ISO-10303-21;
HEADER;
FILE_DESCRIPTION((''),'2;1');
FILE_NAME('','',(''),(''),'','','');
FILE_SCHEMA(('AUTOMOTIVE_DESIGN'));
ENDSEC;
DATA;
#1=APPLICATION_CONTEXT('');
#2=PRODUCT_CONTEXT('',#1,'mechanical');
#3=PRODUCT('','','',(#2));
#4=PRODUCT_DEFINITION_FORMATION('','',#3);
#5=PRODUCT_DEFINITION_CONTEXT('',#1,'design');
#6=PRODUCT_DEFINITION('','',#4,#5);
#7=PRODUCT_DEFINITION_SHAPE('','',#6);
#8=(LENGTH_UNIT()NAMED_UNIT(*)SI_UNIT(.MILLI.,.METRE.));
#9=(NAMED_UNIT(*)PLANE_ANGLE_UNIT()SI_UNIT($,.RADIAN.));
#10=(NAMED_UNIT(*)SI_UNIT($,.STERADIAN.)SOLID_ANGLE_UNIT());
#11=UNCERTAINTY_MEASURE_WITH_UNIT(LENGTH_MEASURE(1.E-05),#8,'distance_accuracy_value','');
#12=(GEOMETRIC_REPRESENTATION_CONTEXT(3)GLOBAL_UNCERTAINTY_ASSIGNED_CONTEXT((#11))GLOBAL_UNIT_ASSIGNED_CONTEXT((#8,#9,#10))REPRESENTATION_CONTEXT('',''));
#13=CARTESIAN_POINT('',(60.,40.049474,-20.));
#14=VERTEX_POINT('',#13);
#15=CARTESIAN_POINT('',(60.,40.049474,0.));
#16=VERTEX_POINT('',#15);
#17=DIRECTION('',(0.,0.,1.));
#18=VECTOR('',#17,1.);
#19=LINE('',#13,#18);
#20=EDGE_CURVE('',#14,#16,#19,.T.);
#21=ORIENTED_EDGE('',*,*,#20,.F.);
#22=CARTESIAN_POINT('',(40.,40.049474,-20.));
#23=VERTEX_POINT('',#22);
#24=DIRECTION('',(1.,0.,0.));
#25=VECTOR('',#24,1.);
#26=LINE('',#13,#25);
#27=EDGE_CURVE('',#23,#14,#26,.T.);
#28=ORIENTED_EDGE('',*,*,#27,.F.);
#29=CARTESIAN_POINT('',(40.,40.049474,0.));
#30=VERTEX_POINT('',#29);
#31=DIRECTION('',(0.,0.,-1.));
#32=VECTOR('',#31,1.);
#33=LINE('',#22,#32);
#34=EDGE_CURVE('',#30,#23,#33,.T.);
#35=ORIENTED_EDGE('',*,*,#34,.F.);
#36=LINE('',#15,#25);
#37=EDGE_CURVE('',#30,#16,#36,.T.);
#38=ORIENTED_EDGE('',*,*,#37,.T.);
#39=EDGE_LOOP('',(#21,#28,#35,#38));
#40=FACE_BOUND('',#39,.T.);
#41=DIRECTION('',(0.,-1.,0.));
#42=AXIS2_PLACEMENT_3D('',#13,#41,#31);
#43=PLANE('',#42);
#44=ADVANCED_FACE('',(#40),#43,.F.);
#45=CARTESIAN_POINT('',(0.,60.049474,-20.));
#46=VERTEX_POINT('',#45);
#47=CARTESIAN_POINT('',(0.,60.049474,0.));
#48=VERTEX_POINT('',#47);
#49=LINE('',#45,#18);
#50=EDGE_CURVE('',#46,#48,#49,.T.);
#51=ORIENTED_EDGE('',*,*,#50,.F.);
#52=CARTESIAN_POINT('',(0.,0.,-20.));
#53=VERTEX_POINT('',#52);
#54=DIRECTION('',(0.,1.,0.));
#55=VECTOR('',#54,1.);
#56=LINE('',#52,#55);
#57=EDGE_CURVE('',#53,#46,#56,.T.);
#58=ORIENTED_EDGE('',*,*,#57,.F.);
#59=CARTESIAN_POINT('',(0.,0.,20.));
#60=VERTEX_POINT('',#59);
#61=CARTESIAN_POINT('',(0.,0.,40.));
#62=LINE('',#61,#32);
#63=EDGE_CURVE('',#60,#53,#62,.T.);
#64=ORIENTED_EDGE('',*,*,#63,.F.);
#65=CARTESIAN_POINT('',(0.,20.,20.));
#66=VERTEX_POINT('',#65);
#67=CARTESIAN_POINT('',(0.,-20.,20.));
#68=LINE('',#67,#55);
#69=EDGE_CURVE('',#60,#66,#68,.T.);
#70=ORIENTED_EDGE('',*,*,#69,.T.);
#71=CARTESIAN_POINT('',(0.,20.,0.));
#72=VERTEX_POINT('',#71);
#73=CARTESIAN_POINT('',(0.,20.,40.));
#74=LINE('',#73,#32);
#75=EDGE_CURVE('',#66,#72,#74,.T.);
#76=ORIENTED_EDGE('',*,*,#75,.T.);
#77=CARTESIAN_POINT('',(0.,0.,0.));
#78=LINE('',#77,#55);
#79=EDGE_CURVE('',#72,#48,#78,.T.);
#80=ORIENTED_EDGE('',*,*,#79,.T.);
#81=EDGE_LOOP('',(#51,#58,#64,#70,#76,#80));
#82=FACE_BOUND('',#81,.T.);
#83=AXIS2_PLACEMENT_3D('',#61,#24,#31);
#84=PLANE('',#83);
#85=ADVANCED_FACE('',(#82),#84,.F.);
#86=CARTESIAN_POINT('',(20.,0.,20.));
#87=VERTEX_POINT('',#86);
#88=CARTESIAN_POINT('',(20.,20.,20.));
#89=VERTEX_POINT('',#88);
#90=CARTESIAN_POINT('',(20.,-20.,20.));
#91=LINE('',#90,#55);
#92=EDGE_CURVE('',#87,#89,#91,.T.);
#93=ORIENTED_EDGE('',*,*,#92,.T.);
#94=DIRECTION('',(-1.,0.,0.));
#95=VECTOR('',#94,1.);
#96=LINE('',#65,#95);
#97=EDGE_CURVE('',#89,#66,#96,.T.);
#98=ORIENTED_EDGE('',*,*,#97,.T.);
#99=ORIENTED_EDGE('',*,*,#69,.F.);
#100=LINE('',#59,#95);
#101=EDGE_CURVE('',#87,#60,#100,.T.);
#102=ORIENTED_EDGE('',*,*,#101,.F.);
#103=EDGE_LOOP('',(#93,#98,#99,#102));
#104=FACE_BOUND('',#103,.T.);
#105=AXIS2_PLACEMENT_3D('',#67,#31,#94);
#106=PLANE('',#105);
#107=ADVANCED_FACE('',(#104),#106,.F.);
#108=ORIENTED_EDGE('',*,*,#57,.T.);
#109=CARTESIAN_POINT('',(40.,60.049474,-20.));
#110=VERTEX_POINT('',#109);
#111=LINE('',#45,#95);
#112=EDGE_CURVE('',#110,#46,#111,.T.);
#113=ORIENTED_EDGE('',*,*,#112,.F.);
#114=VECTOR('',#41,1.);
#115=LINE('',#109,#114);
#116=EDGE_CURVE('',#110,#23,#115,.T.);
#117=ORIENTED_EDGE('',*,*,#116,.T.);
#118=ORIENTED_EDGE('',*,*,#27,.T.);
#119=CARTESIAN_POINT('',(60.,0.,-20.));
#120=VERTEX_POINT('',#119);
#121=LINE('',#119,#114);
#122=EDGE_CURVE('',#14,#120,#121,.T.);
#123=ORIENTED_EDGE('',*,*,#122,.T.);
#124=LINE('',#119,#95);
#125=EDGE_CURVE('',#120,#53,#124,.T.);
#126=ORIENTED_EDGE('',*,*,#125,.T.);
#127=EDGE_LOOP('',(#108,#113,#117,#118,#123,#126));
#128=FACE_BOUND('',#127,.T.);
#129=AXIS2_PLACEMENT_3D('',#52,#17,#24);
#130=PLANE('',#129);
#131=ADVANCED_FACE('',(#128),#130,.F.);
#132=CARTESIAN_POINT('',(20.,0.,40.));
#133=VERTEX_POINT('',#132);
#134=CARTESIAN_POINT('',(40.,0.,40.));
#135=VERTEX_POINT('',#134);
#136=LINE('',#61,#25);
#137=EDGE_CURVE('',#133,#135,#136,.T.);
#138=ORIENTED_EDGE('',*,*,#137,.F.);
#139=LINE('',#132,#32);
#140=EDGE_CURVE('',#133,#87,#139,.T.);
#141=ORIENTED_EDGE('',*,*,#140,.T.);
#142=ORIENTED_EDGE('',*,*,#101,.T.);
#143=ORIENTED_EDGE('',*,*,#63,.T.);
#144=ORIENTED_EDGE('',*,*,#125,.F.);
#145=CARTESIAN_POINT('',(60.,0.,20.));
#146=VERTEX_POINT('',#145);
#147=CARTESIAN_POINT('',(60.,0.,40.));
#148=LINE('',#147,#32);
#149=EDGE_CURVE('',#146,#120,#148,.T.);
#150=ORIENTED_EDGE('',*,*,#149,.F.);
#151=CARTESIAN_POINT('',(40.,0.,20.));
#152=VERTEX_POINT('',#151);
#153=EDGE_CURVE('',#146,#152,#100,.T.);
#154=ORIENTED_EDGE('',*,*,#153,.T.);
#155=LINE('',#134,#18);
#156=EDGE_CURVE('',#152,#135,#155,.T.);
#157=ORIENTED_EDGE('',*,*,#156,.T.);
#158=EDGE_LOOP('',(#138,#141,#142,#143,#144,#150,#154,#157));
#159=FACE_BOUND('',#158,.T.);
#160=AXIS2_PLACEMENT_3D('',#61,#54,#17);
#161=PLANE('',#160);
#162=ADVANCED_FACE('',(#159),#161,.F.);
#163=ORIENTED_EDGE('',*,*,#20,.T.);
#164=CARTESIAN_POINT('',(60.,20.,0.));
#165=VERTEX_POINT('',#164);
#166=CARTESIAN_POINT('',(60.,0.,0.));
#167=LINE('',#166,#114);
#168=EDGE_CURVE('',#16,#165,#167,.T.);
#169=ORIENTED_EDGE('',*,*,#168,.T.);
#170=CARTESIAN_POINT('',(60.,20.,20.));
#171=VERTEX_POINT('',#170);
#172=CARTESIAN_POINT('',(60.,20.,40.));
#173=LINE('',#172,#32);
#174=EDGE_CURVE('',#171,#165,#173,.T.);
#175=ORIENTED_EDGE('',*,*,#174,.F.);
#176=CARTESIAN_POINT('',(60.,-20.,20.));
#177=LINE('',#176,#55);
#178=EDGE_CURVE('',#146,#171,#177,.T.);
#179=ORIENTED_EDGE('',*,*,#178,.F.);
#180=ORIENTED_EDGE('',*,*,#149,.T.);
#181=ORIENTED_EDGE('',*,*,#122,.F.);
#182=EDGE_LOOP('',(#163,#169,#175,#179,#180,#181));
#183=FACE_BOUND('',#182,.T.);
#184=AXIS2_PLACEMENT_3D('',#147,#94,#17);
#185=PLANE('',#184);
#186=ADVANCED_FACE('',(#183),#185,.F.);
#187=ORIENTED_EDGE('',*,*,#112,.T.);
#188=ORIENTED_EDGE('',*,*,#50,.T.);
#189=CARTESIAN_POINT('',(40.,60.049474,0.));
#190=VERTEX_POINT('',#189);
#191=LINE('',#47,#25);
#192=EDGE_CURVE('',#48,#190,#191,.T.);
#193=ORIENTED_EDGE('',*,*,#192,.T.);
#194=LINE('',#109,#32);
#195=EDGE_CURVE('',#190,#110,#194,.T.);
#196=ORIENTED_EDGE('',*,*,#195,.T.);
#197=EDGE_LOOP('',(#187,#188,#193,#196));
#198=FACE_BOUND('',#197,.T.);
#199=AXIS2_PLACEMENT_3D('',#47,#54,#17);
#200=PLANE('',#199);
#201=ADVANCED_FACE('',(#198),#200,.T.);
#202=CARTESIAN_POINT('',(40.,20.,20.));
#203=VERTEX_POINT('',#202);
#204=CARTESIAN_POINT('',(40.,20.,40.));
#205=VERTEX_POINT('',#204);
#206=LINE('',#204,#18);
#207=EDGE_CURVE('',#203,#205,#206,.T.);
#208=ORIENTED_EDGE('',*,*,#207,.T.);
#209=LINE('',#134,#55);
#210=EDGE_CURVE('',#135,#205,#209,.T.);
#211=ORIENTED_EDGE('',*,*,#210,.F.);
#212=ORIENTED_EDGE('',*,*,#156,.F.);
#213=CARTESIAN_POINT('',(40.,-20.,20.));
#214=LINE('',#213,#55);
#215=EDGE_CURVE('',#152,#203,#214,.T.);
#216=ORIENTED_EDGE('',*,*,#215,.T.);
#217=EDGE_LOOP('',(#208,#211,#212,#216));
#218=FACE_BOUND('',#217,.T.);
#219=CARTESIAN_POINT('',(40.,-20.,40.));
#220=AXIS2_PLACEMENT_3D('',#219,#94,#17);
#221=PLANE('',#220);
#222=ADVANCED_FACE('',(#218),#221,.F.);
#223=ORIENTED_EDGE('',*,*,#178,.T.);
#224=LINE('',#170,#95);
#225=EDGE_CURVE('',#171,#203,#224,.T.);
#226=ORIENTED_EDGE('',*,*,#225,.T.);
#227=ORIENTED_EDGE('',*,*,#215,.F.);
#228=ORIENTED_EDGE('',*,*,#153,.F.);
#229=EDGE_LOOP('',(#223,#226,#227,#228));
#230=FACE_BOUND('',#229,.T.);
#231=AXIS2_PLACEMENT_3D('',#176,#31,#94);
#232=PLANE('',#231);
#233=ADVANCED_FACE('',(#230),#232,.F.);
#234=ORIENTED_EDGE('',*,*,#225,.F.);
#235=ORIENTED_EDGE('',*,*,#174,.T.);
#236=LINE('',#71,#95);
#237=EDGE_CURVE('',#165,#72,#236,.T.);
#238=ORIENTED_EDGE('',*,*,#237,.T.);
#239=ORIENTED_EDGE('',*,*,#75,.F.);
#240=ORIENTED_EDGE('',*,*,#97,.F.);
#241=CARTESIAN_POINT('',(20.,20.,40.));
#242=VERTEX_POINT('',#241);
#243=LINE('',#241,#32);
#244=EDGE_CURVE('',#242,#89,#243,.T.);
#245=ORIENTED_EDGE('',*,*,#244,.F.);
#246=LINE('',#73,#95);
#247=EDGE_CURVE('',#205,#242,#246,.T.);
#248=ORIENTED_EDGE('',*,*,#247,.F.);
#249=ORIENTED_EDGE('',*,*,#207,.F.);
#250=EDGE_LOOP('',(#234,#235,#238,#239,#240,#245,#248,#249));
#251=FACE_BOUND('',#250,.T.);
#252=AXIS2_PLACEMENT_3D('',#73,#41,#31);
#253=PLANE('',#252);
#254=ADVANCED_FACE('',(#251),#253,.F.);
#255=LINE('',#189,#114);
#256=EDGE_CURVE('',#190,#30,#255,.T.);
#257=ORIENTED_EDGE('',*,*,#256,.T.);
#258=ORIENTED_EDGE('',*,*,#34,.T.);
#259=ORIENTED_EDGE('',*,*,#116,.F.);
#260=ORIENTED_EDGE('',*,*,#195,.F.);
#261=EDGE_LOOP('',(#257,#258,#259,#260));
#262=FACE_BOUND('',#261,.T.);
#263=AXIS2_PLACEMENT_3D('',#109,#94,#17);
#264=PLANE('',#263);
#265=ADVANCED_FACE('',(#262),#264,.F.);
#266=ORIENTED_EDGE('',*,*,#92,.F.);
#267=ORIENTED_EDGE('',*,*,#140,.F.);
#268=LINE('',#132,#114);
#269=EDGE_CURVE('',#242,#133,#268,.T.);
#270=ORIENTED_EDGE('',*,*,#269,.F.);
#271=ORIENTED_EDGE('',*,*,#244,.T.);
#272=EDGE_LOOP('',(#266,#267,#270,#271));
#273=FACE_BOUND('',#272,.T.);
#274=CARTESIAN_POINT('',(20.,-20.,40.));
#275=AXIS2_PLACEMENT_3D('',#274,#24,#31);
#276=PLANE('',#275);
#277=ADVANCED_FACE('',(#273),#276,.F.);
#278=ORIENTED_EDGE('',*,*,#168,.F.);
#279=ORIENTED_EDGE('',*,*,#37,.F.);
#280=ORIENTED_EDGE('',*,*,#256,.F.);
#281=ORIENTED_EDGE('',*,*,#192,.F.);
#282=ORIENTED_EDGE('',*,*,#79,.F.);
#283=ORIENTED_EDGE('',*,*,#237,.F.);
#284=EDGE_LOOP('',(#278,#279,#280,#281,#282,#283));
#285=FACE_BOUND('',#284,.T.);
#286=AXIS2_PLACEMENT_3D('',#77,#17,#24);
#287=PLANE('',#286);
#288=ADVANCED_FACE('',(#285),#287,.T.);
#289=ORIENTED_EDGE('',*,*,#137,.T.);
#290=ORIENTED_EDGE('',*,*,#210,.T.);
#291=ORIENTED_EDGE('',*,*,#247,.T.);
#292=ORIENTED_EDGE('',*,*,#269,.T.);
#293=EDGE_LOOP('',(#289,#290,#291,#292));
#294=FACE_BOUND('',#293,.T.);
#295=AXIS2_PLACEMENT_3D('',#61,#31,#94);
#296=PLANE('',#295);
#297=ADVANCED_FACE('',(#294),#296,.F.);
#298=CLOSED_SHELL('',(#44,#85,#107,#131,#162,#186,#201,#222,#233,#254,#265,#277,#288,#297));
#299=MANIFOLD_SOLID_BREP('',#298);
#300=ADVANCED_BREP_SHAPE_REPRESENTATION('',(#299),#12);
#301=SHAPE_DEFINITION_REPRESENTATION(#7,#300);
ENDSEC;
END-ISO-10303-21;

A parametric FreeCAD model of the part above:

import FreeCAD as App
import Part
import Sketcher

V = App.Vector

doc = App.newDocument("Part")
body = doc.addObject("PartDesign::Body", "Body")

# Sketch on XY plane
sketch1 = body.newObject("Sketcher::SketchObject", "Sketch")
sketch1.AttachmentSupport = (doc.getObject("XY_Plane"), [""])
sketch1.MapMode = "FlatFace"
sketch1.addGeometry([
    Part.LineSegment(V(0, 20, 0), V(0, 0, 0)),
    Part.LineSegment(V(0, 0, 0), V(60, 0, 0)),
    Part.LineSegment(V(60, 0, 0), V(60, 20, 0)),
    Part.LineSegment(V(60, 20, 0), V(0, 20, 0)),
], False)
sketch1.addConstraint([
    Sketcher.Constraint("Coincident", 0, 2, 1, 1),
    Sketcher.Constraint("Coincident", 1, 2, 2, 1),
    Sketcher.Constraint("Coincident", 2, 2, 3, 1),
    Sketcher.Constraint("Coincident", 3, 2, 0, 1),
    Sketcher.Constraint("Vertical", 0),
    Sketcher.Constraint("Horizontal", 1),
    Sketcher.Constraint("Vertical", 2),
    Sketcher.Constraint("Horizontal", 3),
    Sketcher.Constraint("Coincident", 0, 2, -1, 1),
    Sketcher.Constraint("DistanceX", 1, 1, 1, 2, 60.0),
    Sketcher.Constraint("DistanceY", 0, 2, 0, 1, 20.0),
])
pad1 = body.newObject("PartDesign::Pad", "Pad")
pad1.Profile = sketch1
pad1.Length = 40

# Sketch on XZ plane
sketch2 = body.newObject("Sketcher::SketchObject", "Sketch001")
sketch2.AttachmentSupport = (doc.getObject("XZ_Plane"), [""])
sketch2.MapMode = "FlatFace"
sketch2.AttachmentOffset = App.Placement(V(0, 0, -20), App.Rotation())
sketch2.addGeometry([
    Part.LineSegment(V(0, 20, 0), V(0, 40, 0)),
    Part.LineSegment(V(0, 40, 0), V(20, 40, 0)),
    Part.LineSegment(V(20, 40, 0), V(20, 20, 0)),
    Part.LineSegment(V(20, 20, 0), V(0, 20, 0)),
], False)
sketch2.addConstraint([
    Sketcher.Constraint("Coincident", 0, 2, 1, 1),
    Sketcher.Constraint("Coincident", 1, 2, 2, 1),
    Sketcher.Constraint("Coincident", 2, 2, 3, 1),
    Sketcher.Constraint("Coincident", 3, 2, 0, 1),
    Sketcher.Constraint("Vertical", 0),
    Sketcher.Constraint("Horizontal", 1),
    Sketcher.Constraint("Vertical", 2),
    Sketcher.Constraint("Horizontal", 3),
    Sketcher.Constraint("PointOnObject", 0, 2, -2),
    Sketcher.Constraint("Equal", 3, 0),
    Sketcher.Constraint("DistanceX", 1, 1, 1, 2, 20.0),
    Sketcher.Constraint("DistanceY", -1, 1, 0, 2, 40.0),
])
pocket1 = body.newObject("PartDesign::Pocket", "Pocket")
pocket1.Profile = sketch2
pocket1.Length = 40
pocket1.Reversed = True

# Sketch on XZ plane
sketch3 = body.newObject("Sketcher::SketchObject", "Sketch002")
sketch3.AttachmentSupport = (doc.getObject("XZ_Plane"), [""])
sketch3.MapMode = "FlatFace"
sketch3.AttachmentOffset = App.Placement(V(0, 0, -20), App.Rotation())
sketch3.addGeometry([
    Part.LineSegment(V(40, 20, 0), V(40, 40, 0)),
    Part.LineSegment(V(40, 40, 0), V(60, 40, 0)),
    Part.LineSegment(V(60, 40, 0), V(60, 20, 0)),
    Part.LineSegment(V(60, 20, 0), V(40, 20, 0)),
], False)
sketch3.addConstraint([
    Sketcher.Constraint("Coincident", 0, 2, 1, 1),
    Sketcher.Constraint("Coincident", 1, 2, 2, 1),
    Sketcher.Constraint("Coincident", 2, 2, 3, 1),
    Sketcher.Constraint("Coincident", 3, 2, 0, 1),
    Sketcher.Constraint("Vertical", 0),
    Sketcher.Constraint("Horizontal", 1),
    Sketcher.Constraint("Vertical", 2),
    Sketcher.Constraint("Horizontal", 3),
    Sketcher.Constraint("Equal", 3, 0),
    Sketcher.Constraint("DistanceX", 1, 1, 1, 2, 20.0),
    Sketcher.Constraint("DistanceX", -1, 1, 0, 2, 40.0),
    Sketcher.Constraint("DistanceY", -1, 1, 0, 2, 40.0),
])
pocket2 = body.newObject("PartDesign::Pocket", "Pocket001")
pocket2.Profile = sketch3
pocket2.Length = 40
pocket2.Reversed = True

# Sketch on XY plane
sketch4 = body.newObject("Sketcher::SketchObject", "Sketch003")
sketch4.AttachmentSupport = (doc.getObject("XY_Plane"), [""])
sketch4.MapMode = "FlatFace"
sketch4.addGeometry([
    Part.LineSegment(V(60, 40, 0), V(60, 0, 0)),
    Part.LineSegment(V(60, 0, 0), V(0, 0, 0)),
    Part.LineSegment(V(0, 0, 0), V(0, 40, 0)),
    Part.LineSegment(V(0, 40, 0), V(60, 40, 0)),
], False)
sketch4.addConstraint([
    Sketcher.Constraint("Coincident", 0, 2, 1, 1),
    Sketcher.Constraint("Coincident", 1, 2, 2, 1),
    Sketcher.Constraint("Coincident", 2, 2, 3, 1),
    Sketcher.Constraint("Coincident", 3, 2, 0, 1),
    Sketcher.Constraint("Vertical", 0),
    Sketcher.Constraint("Horizontal", 1),
    Sketcher.Constraint("Vertical", 2),
    Sketcher.Constraint("Horizontal", 3),
    Sketcher.Constraint("Coincident", 1, 2, -1, 1),
    Sketcher.Constraint("DistanceX", 1, 2, 1, 1, 60.0),
    Sketcher.Constraint("DistanceY", 0, 2, 0, 1, 40.049474),
])
pad2 = body.newObject("PartDesign::Pad", "Pad001")
pad2.Profile = sketch4
pad2.Length = 20
pad2.Reversed = True

# Sketch on XZ plane
sketch5 = body.newObject("Sketcher::SketchObject", "Sketch004")
sketch5.AttachmentSupport = (doc.getObject("XZ_Plane"), [""])
sketch5.MapMode = "FlatFace"
sketch5.AttachmentOffset = App.Placement(V(0, 0, -40.049474), App.Rotation())
sketch5.addGeometry([
    Part.LineSegment(V(0, -20, 0), V(0, 0, 0)),
    Part.LineSegment(V(0, 0, 0), V(40, 0, 0)),
    Part.LineSegment(V(40, 0, 0), V(40, -20, 0)),
    Part.LineSegment(V(40, -20, 0), V(0, -20, 0)),
], False)
sketch5.addConstraint([
    Sketcher.Constraint("Coincident", 0, 2, 1, 1),
    Sketcher.Constraint("Coincident", 1, 2, 2, 1),
    Sketcher.Constraint("Coincident", 2, 2, 3, 1),
    Sketcher.Constraint("Coincident", 3, 2, 0, 1),
    Sketcher.Constraint("Vertical", 0),
    Sketcher.Constraint("Horizontal", 1),
    Sketcher.Constraint("Vertical", 2),
    Sketcher.Constraint("Horizontal", 3),
    Sketcher.Constraint("Coincident", 0, 2, -1, 1),
    Sketcher.Constraint("DistanceX", 1, 1, 1, 2, 40.0),
    Sketcher.Constraint("DistanceY", 0, 1, 0, 2, 20.0),
])
pad3 = body.newObject("PartDesign::Pad", "Pad002")
pad3.Profile = sketch5
pad3.Length = 20
pad3.Reversed = True

doc.recompute()
